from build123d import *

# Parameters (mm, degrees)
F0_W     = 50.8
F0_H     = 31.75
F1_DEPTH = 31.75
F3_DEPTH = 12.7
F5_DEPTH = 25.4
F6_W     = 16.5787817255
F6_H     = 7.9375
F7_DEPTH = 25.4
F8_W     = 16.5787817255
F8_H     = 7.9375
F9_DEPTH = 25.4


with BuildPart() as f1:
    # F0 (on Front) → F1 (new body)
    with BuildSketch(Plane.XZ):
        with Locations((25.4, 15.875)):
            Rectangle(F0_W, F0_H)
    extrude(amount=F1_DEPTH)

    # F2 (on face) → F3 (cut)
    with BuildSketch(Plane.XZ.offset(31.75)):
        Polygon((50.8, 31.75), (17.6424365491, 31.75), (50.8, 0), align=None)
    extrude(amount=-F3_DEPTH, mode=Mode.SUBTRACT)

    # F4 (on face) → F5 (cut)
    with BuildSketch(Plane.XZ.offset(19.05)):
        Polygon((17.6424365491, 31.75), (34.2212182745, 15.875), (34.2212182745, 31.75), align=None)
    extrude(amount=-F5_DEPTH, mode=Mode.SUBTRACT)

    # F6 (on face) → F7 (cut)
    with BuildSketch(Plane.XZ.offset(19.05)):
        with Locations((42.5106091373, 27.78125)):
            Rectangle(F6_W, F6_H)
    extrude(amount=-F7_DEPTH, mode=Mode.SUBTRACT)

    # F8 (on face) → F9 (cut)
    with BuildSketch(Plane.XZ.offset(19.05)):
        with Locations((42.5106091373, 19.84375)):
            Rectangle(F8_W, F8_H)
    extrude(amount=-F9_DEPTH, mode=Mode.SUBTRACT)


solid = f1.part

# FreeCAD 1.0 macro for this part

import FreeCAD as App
import Part
import Sketcher

V = App.Vector
Q = App.Units.Quantity


def add_polygon(sketch, points):
    """Adds a closed chain of lines whose ends are joined by coincident constraints."""
    first, n = sketch.GeometryCount, len(points)
    for a, b in zip(points, points[1:] + points[:1]):
        sketch.addGeometry(Part.LineSegment(App.Vector(*a, 0), App.Vector(*b, 0)), False)
    for i in range(n):
        sketch.addConstraint(Sketcher.Constraint("Coincident", first + i, 2, first + (i + 1) % n, 1))

doc = App.newDocument("Part")
params = doc.addObject("Spreadsheet::Sheet", "Params")
for row, (alias, value) in enumerate([
    ("sketch1_width", "2 in"),
    ("sketch1_height", "1.25 in"),
    ("pad1_length", "1.25 in"),
    ("sketch2_height", "1.25 in"),
    ("pocket1_length", "0.5 in"),
    ("sketch3_height", "0.625 in"),
    ("pocket2_length", "1 in"),
    ("sketch4_height", "0.3125 in"),
    ("pocket3_length", "1 in"),
    ("sketch5_height", "0.3125 in"),
    ("pocket4_length", "1 in"),
], start=1):
    params.set(f"A{row}", alias)
    params.set(f"B{row}", "=" + value)
    params.setAlias(f"B{row}", alias)

body = doc.addObject("PartDesign::Body", "Body")

sketch1 = body.newObject("Sketcher::SketchObject", "Sketch")
sketch1.AttachmentSupport = (doc.getObject("XZ_Plane"), [""])
sketch1.MapMode = "FlatFace"
add_polygon(sketch1, [(0, 31.75), (0, 0), (50.8, 0), (50.8, 31.75)])
sketch1.addConstraint(Sketcher.Constraint("Vertical", 0))
sketch1.addConstraint(Sketcher.Constraint("Horizontal", 1))
sketch1.addConstraint(Sketcher.Constraint("Vertical", 2))
sketch1.addConstraint(Sketcher.Constraint("Horizontal", 3))
sketch1.addConstraint(Sketcher.Constraint("Coincident", 0, 2, -1, 1))
sketch1.addConstraint(Sketcher.Constraint("DistanceX", 1, 1, 1, 2, Q("2 in")))
sketch1.addConstraint(Sketcher.Constraint("DistanceY", 0, 2, 0, 1, Q("1.25 in")))
sketch1.setExpression("Constraints[9]", "Params.sketch1_width")
sketch1.setExpression("Constraints[10]", "Params.sketch1_height")
pad1 = body.newObject("PartDesign::Pad", "Pad")
pad1.Profile = sketch1
pad1.setExpression("Length", "Params.pad1_length")

sketch2 = body.newObject("Sketcher::SketchObject", "Sketch001")
sketch2.AttachmentSupport = (doc.getObject("XZ_Plane"), [""])
sketch2.MapMode = "FlatFace"
sketch2.AttachmentOffset = App.Placement(V(0, 0, 1.25 * 25.4), App.Rotation())
add_polygon(sketch2, [(50.8, 31.75), (17.642437, 31.75), (50.8, 0)])
sketch2.addConstraint(Sketcher.Constraint("Horizontal", 0))
sketch2.addConstraint(Sketcher.Constraint("Vertical", 2))
sketch2.addConstraint(Sketcher.Constraint("PointOnObject", 1, 2, -1))
sketch2.addConstraint(Sketcher.Constraint("DistanceX", -1, 1, 1, 2, Q("2 in")))
sketch2.addConstraint(Sketcher.Constraint("DistanceY", 2, 1, 2, 2, Q("1.25 in")))
sketch2.addConstraint(Sketcher.Constraint("Distance", 1, 45.907369))
sketch2.setExpression("Constraints[7]", "Params.sketch2_height")
pocket1 = body.newObject("PartDesign::Pocket", "Pocket")
pocket1.Profile = sketch2
pocket1.setExpression("Length", "Params.pocket1_length")

sketch3 = body.newObject("Sketcher::SketchObject", "Sketch002")
sketch3.AttachmentSupport = (doc.getObject("XZ_Plane"), [""])
sketch3.MapMode = "FlatFace"
sketch3.AttachmentOffset = App.Placement(V(0, 0, 0.75 * 25.4), App.Rotation())
add_polygon(sketch3, [(17.642437, 31.75), (34.221218, 15.875), (34.221218, 31.75)])
sketch3.addConstraint(Sketcher.Constraint("Vertical", 1))
sketch3.addConstraint(Sketcher.Constraint("Horizontal", 2))
sketch3.addConstraint(Sketcher.Constraint("DistanceY", 1, 1, 1, 2, Q("0.625 in")))
sketch3.addConstraint(Sketcher.Constraint("DistanceY", -1, 1, 1, 2, Q("1.25 in")))
sketch3.addConstraint(Sketcher.Constraint("DistanceX", 2, 2, 2, 1, 16.578782))
sketch3.addConstraint(Sketcher.Constraint("DistanceX", -1, 1, 0, 2, 34.221218))
sketch3.setExpression("Constraints[5]", "Params.sketch3_height")
pocket2 = body.newObject("PartDesign::Pocket", "Pocket001")
pocket2.Profile = sketch3
pocket2.setExpression("Length", "Params.pocket2_length")

sketch4 = body.newObject("Sketcher::SketchObject", "Sketch003")
sketch4.AttachmentSupport = (doc.getObject("XZ_Plane"), [""])
sketch4.MapMode = "FlatFace"
sketch4.AttachmentOffset = App.Placement(V(0, 0, 0.75 * 25.4), App.Rotation())
add_polygon(sketch4, [(34.221218, 31.75), (34.221218, 23.8125), (50.8, 23.8125), (50.8, 31.75)])
sketch4.addConstraint(Sketcher.Constraint("Vertical", 0))
sketch4.addConstraint(Sketcher.Constraint("Horizontal", 1))
sketch4.addConstraint(Sketcher.Constraint("Vertical", 2))
sketch4.addConstraint(Sketcher.Constraint("Horizontal", 3))
sketch4.addConstraint(Sketcher.Constraint("DistanceX", -1, 1, 1, 2, Q("2 in")))
sketch4.addConstraint(Sketcher.Constraint("DistanceY", 0, 2, 0, 1, Q("0.3125 in")))
sketch4.addConstraint(Sketcher.Constraint("DistanceY", -1, 1, 2, 2, Q("1.25 in")))
sketch4.addConstraint(Sketcher.Constraint("DistanceX", 1, 1, 1, 2, 16.578782))
sketch4.setExpression("Constraints[9]", "Params.sketch4_height")
pocket3 = body.newObject("PartDesign::Pocket", "Pocket002")
pocket3.Profile = sketch4
pocket3.setExpression("Length", "Params.pocket3_length")

sketch5 = body.newObject("Sketcher::SketchObject", "Sketch004")
sketch5.AttachmentSupport = (doc.getObject("XZ_Plane"), [""])
sketch5.MapMode = "FlatFace"
sketch5.AttachmentOffset = App.Placement(V(0, 0, 0.75 * 25.4), App.Rotation())
add_polygon(sketch5, [(34.221218, 23.8125), (34.221218, 15.875), (50.8, 15.875), (50.8, 23.8125)])
sketch5.addConstraint(Sketcher.Constraint("Vertical", 0))
sketch5.addConstraint(Sketcher.Constraint("Horizontal", 1))
sketch5.addConstraint(Sketcher.Constraint("Vertical", 2))
sketch5.addConstraint(Sketcher.Constraint("Horizontal", 3))
sketch5.addConstraint(Sketcher.Constraint("DistanceX", -1, 1, 1, 2, Q("2 in")))
sketch5.addConstraint(Sketcher.Constraint("DistanceY", 0, 2, 0, 1, Q("0.3125 in")))
sketch5.addConstraint(Sketcher.Constraint("DistanceY", -1, 1, 0, 2, Q("0.625 in")))
sketch5.addConstraint(Sketcher.Constraint("DistanceX", 1, 1, 1, 2, 16.578782))
sketch5.setExpression("Constraints[9]", "Params.sketch5_height")
pocket4 = body.newObject("PartDesign::Pocket", "Pocket003")
pocket4.Profile = sketch5
pocket4.setExpression("Length", "Params.pocket4_length")

doc.recompute()
